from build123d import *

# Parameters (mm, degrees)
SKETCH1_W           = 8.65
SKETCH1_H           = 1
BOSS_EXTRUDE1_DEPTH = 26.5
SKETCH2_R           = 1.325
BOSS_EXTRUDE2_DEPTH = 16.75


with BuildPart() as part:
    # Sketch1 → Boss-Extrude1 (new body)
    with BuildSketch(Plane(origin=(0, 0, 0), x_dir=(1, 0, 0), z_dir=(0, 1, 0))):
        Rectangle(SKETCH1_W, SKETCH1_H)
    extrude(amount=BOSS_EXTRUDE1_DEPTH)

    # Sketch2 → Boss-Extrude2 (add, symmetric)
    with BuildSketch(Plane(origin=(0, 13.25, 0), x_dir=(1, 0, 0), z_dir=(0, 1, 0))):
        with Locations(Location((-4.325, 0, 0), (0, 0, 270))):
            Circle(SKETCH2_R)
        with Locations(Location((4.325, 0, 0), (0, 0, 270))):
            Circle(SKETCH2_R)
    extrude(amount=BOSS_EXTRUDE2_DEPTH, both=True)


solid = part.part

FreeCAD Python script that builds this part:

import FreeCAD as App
import Part
import Sketcher


def add_polygon(sketch, points):
    """Adds a closed chain of lines whose ends are joined by coincident constraints."""
    first, n = sketch.GeometryCount, len(points)
    for a, b in zip(points, points[1:] + points[:1]):
        sketch.addGeometry(Part.LineSegment(App.Vector(*a, 0), App.Vector(*b, 0)), False)
    for i in range(n):
        sketch.addConstraint(Sketcher.Constraint("Coincident", first + i, 2, first + (i + 1) % n, 1))

doc = App.newDocument("Part")
body = doc.addObject("PartDesign::Body", "Body")

# Sketch on XZ plane
sketch1 = body.newObject("Sketcher::SketchObject", "Sketch")
sketch1.AttachmentSupport = (doc.getObject("XZ_Plane"), [""])
sketch1.MapMode = "FlatFace"
add_polygon(sketch1, [(-4.3, -0.5), (-4.3, 0.5), (4.3, 0.5), (4.3, -0.5)])  # lines 0-3
sketch1.addConstraint(Sketcher.Constraint("Vertical", 0))
sketch1.addConstraint(Sketcher.Constraint("Horizontal", 1))
sketch1.addConstraint(Sketcher.Constraint("Vertical", 2))
sketch1.addConstraint(Sketcher.Constraint("Horizontal", 3))
sketch1.addConstraint(Sketcher.Constraint("Symmetric", 0, 2, 2, 2, -1, 1))
sketch1.addConstraint(Sketcher.Constraint("DistanceY", 0, 1, 0, 2, 1.0))
sketch1.addConstraint(Sketcher.Constraint("DistanceX", 1, 1, 1, 2, 8.65))
pad1 = body.newObject("PartDesign::Pad", "Pad")
pad1.Profile = sketch1
pad1.Length = 26.5
pad1.Reversed = True

# Sketch on XZ plane
sketch2 = body.newObject("Sketcher::SketchObject", "Sketch001")
sketch2.AttachmentSupport = (doc.getObject("XZ_Plane"), [""])
sketch2.MapMode = "FlatFace"
sketch2.AttachmentOffset = App.Placement(App.Vector(0, 0, -13.25), App.Rotation())
sketch2.addGeometry(Part.Circle(App.Vector(-4.3, 0, 0), App.Vector(0, 0, 1), 1.3), False)
sketch2.addGeometry(Part.Circle(App.Vector(4.3, 0, 0), App.Vector(0, 0, 1), 1.3), False)
sketch2.addConstraint(Sketcher.Constraint("Equal", 0, 1))
sketch2.addConstraint(Sketcher.Constraint("Symmetric", 0, 3, 1, 3, -1, 1))
sketch2.addConstraint(Sketcher.Constraint("PointOnObject", 0, 3, -1))
sketch2.addConstraint(Sketcher.Constraint("Diameter", 0, 2.65))
sketch2.addConstraint(Sketcher.Constraint("DistanceX", 0, 3, 1, 3, 8.65))
pad2 = body.newObject("PartDesign::Pad", "Pad001")
pad2.Profile = sketch2
pad2.Length = 33.5
pad2.Midplane = True

doc.recompute()
